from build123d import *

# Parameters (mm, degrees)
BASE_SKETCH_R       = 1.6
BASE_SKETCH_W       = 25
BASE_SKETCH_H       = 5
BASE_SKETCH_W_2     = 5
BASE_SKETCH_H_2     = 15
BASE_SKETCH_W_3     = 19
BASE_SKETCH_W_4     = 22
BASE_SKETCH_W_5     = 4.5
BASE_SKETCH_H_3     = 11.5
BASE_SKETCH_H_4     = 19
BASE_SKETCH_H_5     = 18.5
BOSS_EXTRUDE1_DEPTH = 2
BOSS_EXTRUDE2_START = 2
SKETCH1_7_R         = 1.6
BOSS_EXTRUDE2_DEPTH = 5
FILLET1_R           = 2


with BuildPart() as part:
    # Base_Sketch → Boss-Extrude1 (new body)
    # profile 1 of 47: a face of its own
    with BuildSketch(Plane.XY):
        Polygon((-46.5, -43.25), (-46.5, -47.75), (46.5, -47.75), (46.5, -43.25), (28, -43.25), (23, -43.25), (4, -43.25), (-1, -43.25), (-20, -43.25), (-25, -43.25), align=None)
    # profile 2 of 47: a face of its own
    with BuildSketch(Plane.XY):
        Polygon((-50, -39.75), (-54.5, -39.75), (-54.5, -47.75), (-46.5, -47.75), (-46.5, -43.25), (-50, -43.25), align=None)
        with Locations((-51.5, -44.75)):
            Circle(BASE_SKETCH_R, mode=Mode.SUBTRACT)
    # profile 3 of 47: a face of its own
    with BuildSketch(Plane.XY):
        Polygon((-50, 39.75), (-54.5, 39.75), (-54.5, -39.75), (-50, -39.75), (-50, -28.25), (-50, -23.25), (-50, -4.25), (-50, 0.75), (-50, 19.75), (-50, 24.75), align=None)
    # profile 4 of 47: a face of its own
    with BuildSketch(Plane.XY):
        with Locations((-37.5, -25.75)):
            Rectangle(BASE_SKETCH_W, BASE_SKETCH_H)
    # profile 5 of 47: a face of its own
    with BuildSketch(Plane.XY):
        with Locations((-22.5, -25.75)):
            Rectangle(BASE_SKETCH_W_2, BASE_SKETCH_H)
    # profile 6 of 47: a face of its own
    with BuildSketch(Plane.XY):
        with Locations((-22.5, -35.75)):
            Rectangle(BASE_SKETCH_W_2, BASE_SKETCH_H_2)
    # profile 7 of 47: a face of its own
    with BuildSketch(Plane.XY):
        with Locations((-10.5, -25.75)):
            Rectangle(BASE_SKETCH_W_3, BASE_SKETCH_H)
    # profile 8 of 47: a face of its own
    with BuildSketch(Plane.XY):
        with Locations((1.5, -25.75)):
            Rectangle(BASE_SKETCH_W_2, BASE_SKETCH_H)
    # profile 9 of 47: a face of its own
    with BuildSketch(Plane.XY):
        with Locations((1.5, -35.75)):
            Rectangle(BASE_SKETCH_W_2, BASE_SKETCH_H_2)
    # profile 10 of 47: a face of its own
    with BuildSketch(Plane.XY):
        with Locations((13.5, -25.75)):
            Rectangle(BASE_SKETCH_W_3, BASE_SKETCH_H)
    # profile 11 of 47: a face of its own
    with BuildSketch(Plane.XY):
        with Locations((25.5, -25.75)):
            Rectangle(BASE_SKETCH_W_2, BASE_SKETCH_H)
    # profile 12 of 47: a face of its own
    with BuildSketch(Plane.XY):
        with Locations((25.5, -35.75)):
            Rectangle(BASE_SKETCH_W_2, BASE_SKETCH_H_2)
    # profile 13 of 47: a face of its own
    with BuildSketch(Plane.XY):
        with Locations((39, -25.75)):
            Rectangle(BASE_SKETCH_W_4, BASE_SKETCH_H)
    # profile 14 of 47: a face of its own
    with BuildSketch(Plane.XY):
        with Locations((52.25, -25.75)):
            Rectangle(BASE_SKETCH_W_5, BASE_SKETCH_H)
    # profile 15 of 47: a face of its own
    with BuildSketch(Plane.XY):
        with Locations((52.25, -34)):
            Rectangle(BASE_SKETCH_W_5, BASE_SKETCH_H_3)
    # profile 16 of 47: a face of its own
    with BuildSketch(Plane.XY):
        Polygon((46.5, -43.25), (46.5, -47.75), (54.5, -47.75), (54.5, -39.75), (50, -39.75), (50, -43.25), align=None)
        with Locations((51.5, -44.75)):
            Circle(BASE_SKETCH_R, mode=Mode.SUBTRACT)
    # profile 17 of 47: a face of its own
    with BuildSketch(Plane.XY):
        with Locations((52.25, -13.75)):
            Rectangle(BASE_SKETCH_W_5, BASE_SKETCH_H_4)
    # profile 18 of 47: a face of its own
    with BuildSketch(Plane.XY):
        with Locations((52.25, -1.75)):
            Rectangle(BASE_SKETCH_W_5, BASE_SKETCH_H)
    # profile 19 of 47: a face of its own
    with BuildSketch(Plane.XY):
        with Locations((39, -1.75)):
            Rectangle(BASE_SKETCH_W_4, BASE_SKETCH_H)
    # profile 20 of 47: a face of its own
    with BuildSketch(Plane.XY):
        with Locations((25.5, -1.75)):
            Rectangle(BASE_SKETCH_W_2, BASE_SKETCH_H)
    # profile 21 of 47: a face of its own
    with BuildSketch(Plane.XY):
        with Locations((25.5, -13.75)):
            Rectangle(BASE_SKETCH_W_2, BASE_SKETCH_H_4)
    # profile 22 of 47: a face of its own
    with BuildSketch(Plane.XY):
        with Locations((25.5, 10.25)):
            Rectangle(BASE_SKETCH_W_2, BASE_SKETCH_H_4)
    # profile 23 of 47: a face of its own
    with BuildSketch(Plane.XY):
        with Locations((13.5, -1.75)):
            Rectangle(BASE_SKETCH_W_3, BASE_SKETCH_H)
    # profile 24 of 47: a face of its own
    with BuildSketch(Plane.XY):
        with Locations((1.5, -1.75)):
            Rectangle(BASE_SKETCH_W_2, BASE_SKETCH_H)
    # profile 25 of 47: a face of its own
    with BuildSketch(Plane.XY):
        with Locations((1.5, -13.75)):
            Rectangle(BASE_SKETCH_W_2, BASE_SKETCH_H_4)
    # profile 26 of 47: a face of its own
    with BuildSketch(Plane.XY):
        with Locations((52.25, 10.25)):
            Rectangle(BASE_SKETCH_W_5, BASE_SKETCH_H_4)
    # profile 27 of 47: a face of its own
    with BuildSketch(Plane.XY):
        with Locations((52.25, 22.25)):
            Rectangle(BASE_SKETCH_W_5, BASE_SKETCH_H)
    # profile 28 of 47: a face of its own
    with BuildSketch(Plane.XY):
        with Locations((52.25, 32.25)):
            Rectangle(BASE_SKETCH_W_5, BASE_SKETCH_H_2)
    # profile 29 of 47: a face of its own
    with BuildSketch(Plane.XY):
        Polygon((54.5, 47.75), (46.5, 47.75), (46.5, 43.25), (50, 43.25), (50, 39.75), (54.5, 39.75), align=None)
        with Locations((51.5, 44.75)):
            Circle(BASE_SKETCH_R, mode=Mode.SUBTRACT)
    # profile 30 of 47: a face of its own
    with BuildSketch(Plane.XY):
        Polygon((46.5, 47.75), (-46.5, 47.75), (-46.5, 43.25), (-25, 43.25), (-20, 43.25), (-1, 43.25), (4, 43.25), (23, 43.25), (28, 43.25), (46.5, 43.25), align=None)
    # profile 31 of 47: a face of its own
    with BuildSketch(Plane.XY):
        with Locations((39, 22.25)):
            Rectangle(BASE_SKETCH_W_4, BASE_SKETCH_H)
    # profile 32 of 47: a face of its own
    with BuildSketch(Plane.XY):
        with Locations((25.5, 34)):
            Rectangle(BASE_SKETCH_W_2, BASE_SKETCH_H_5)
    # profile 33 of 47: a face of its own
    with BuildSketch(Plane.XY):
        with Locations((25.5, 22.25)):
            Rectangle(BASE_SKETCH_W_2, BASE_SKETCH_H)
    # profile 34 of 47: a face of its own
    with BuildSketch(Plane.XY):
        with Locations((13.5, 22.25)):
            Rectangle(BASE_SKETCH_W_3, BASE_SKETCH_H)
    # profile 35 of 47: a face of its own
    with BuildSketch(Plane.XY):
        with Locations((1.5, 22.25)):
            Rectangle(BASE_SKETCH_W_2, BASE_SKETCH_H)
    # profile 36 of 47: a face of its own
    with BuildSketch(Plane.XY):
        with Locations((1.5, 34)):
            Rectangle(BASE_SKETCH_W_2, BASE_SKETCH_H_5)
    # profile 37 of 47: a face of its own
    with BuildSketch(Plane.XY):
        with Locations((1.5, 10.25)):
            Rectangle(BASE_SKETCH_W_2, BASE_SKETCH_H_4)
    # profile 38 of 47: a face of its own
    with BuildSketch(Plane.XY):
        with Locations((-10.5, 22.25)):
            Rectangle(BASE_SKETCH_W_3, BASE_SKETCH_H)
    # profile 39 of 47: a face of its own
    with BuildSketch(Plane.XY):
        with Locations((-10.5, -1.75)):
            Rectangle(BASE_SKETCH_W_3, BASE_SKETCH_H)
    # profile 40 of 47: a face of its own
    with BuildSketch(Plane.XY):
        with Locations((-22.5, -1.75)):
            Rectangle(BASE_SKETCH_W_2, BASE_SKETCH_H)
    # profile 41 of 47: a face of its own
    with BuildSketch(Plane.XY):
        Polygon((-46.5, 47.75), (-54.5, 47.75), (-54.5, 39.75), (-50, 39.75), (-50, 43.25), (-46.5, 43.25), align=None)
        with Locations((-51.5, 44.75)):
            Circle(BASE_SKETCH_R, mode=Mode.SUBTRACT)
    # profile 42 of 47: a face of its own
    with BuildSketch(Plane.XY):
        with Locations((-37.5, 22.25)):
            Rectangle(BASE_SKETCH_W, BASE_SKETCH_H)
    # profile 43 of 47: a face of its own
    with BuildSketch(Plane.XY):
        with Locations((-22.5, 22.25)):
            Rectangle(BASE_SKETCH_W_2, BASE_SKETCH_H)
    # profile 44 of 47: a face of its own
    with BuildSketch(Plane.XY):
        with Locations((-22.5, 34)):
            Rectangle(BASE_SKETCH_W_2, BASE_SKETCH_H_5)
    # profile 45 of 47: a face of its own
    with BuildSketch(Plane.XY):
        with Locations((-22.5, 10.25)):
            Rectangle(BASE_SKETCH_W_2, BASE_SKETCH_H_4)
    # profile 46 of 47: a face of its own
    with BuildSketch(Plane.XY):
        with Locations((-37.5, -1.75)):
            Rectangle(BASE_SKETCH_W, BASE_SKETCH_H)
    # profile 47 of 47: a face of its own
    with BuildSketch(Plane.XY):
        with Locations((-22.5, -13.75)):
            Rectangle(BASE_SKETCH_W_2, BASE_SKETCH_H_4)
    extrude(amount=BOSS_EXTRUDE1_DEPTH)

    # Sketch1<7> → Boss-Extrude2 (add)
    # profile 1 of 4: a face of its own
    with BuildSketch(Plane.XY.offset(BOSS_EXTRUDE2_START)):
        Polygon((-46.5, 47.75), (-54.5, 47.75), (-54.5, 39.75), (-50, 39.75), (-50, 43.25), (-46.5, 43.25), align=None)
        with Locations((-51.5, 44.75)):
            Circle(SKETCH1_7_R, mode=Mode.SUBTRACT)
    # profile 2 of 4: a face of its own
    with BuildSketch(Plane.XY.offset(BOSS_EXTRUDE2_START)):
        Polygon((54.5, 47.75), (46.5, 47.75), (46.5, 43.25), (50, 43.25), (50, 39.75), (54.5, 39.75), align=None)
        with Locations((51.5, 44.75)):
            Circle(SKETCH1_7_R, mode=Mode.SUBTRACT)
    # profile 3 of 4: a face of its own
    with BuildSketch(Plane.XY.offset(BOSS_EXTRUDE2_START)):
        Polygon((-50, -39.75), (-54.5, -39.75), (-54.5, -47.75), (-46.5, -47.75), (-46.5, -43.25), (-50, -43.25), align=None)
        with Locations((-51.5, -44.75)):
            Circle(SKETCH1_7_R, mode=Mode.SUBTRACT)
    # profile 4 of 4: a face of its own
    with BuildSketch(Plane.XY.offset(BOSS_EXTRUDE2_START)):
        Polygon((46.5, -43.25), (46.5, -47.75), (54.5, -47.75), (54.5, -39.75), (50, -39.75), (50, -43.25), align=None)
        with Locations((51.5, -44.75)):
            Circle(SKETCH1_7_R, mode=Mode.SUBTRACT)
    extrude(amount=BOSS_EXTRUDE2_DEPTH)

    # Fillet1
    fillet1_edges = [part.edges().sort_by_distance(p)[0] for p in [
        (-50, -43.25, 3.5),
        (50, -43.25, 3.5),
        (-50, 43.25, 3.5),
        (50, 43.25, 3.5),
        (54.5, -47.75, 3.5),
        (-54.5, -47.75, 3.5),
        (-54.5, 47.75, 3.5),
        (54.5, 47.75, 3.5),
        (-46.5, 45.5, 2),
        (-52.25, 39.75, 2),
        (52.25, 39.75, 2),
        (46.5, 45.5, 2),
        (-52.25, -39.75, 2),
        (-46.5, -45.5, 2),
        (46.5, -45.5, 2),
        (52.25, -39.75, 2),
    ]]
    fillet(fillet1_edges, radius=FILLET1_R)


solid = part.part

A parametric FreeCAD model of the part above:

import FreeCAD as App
import Part
import Sketcher

V = App.Vector
Q = App.Units.Quantity


def edges_at(feature, points):
    """Names of the edges that pass closest to the given points."""
    edges = feature.Shape.Edges
    near = lambda p: min(range(len(edges)), key=lambda i: edges[i].distToShape(Part.Vertex(*p))[0])
    return sorted({f"Edge{near(p) + 1}" for p in points})

doc = App.newDocument("Part")
body = doc.addObject("PartDesign::Body", "Body")

sketch1 = body.newObject("Sketcher::SketchObject", "Sketch")
sketch1.AttachmentSupport = (doc.getObject("XY_Plane"), [""])
sketch1.MapMode = "FlatFace"
sketch1.addGeometry([
    Part.LineSegment(V(54.5, -47.8, 0), V(54.5, 47.8, 0)),
    Part.LineSegment(V(54.5, 47.8, 0), V(-54.5, 47.8, 0)),
    Part.LineSegment(V(-54.5, 47.8, 0), V(-54.5, -47.8, 0)),
    Part.LineSegment(V(-54.5, -47.8, 0), V(54.5, -47.8, 0)),
    Part.LineSegment(V(28, -43.2, 0), V(28, -28.2, 0)),
    Part.LineSegment(V(28, -28.2, 0), V(50, -28.2, 0)),
    Part.LineSegment(V(50, -28.2, 0), V(50, -43.2, 0)),
    Part.LineSegment(V(50, -43.2, 0), V(28, -43.2, 0)),
    Part.LineSegment(V(23, -43.2, 0), V(4, -43.2, 0)),
    Part.LineSegment(V(4, -43.2, 0), V(4, -28.2, 0)),
    Part.LineSegment(V(4, -28.2, 0), V(23, -28.2, 0)),
    Part.LineSegment(V(23, -28.2, 0), V(23, -43.2, 0)),
    Part.LineSegment(V(-1, -43.2, 0), V(-20, -43.2, 0)),
    Part.LineSegment(V(-20, -43.2, 0), V(-20, -28.2, 0)),
    Part.LineSegment(V(-20, -28.2, 0), V(-1, -28.2, 0)),
    Part.LineSegment(V(-1, -28.2, 0), V(-1, -43.2, 0)),
    Part.LineSegment(V(-25, -43.2, 0), V(-50, -43.2, 0)),
    Part.LineSegment(V(-50, -43.2, 0), V(-50, -28.2, 0)),
    Part.LineSegment(V(-50, -28.2, 0), V(-25, -28.2, 0)),
    Part.LineSegment(V(-25, -28.2, 0), V(-25, -43.2, 0)),
    Part.Circle(V(-51.5, -44.8, 0), V(0, 0, 1), 1.6),
    Part.Circle(V(51.5, -44.8, 0), V(0, 0, 1), 1.6),
    Part.LineSegment(V(-50, 24.8, 0), V(-50, 43.2, 0)),
    Part.LineSegment(V(-50, 43.2, 0), V(-25, 43.2, 0)),
    Part.LineSegment(V(-25, 43.2, 0), V(-25, 24.8, 0)),
    Part.LineSegment(V(-25, 24.8, 0), V(-50, 24.8, 0)),
    Part.LineSegment(V(-50, -23.2, 0), V(-50, -4.2, 0)),
    Part.LineSegment(V(-50, -4.2, 0), V(-25, -4.2, 0)),
    Part.LineSegment(V(-25, -4.2, 0), V(-25, -23.2, 0)),
    Part.LineSegment(V(-25, -23.2, 0), V(-50, -23.2, 0)),
    Part.LineSegment(V(-50, 0.8, 0), V(-50, 19.8, 0)),
    Part.LineSegment(V(-50, 19.8, 0), V(-25, 19.8, 0)),
    Part.LineSegment(V(-25, 19.8, 0), V(-25, 0.8, 0)),
    Part.LineSegment(V(-25, 0.8, 0), V(-50, 0.8, 0)),
    Part.Circle(V(-51.5, 44.8, 0), V(0, 0, 1), 1.6),
    Part.LineSegment(V(23, -23.2, 0), V(4, -23.2, 0)),
    Part.LineSegment(V(4, -23.2, 0), V(4, -4.2, 0)),
    Part.LineSegment(V(4, -4.2, 0), V(23, -4.2, 0)),
    Part.LineSegment(V(23, -4.2, 0), V(23, -23.2, 0)),
    Part.LineSegment(V(28, -23.2, 0), V(28, -4.2, 0)),
    Part.LineSegment(V(28, -4.2, 0), V(50, -4.2, 0)),
    Part.LineSegment(V(50, -4.2, 0), V(50, -23.2, 0)),
    Part.LineSegment(V(50, -23.2, 0), V(28, -23.2, 0)),
    Part.LineSegment(V(-1, -23.2, 0), V(-20, -23.2, 0)),
    Part.LineSegment(V(-20, -23.2, 0), V(-20, -4.2, 0)),
    Part.LineSegment(V(-20, -4.2, 0), V(-1, -4.2, 0)),
    Part.LineSegment(V(-1, -4.2, 0), V(-1, -23.2, 0)),
    Part.LineSegment(V(-20, 43.2, 0), V(-1, 43.2, 0)),
    Part.LineSegment(V(-1, 43.2, 0), V(-1, 24.8, 0)),
    Part.LineSegment(V(-1, 24.8, 0), V(-20, 24.8, 0)),
    Part.LineSegment(V(-20, 24.8, 0), V(-20, 43.2, 0)),
    Part.LineSegment(V(4, 43.2, 0), V(23, 43.2, 0)),
    Part.LineSegment(V(23, 43.2, 0), V(23, 24.8, 0)),
    Part.LineSegment(V(23, 24.8, 0), V(4, 24.8, 0)),
    Part.LineSegment(V(4, 24.8, 0), V(4, 43.2, 0)),
    Part.LineSegment(V(28, 43.2, 0), V(50, 43.2, 0)),
    Part.LineSegment(V(50, 43.2, 0), V(50, 24.8, 0)),
    Part.LineSegment(V(50, 24.8, 0), V(28, 24.8, 0)),
    Part.LineSegment(V(28, 24.8, 0), V(28, 43.2, 0)),
    Part.Circle(V(51.5, 44.8, 0), V(0, 0, 1), 1.6),
    Part.LineSegment(V(-20, 0.8, 0), V(-20, 19.8, 0)),
    Part.LineSegment(V(-20, 19.8, 0), V(-1, 19.8, 0)),
    Part.LineSegment(V(-1, 19.8, 0), V(-1, 0.8, 0)),
    Part.LineSegment(V(-1, 0.8, 0), V(-20, 0.8, 0)),
    Part.LineSegment(V(23, 0.8, 0), V(4, 0.8, 0)),
    Part.LineSegment(V(4, 0.8, 0), V(4, 19.8, 0)),
    Part.LineSegment(V(4, 19.8, 0), V(23, 19.8, 0)),
    Part.LineSegment(V(23, 19.8, 0), V(23, 0.8, 0)),
    Part.LineSegment(V(28, 0.8, 0), V(28, 19.8, 0)),
    Part.LineSegment(V(28, 19.8, 0), V(50, 19.8, 0)),
    Part.LineSegment(V(50, 19.8, 0), V(50, 0.8, 0)),
    Part.LineSegment(V(50, 0.8, 0), V(28, 0.8, 0)),
], False)
sketch1.addConstraint([
    Sketcher.Constraint("Coincident", 0, 2, 1, 1),
    Sketcher.Constraint("Coincident", 1, 2, 2, 1),
    Sketcher.Constraint("Coincident", 2, 2, 3, 1),
    Sketcher.Constraint("Coincident", 3, 2, 0, 1),
    Sketcher.Constraint("Coincident", 4, 2, 5, 1),
    Sketcher.Constraint("Coincident", 5, 2, 6, 1),
    Sketcher.Constraint("Coincident", 6, 2, 7, 1),
    Sketcher.Constraint("Coincident", 7, 2, 4, 1),
    Sketcher.Constraint("Coincident", 8, 2, 9, 1),
    Sketcher.Constraint("Coincident", 9, 2, 10, 1),
    Sketcher.Constraint("Coincident", 10, 2, 11, 1),
    Sketcher.Constraint("Coincident", 11, 2, 8, 1),
    Sketcher.Constraint("Coincident", 12, 2, 13, 1),
    Sketcher.Constraint("Coincident", 13, 2, 14, 1),
    Sketcher.Constraint("Coincident", 14, 2, 15, 1),
    Sketcher.Constraint("Coincident", 15, 2, 12, 1),
    Sketcher.Constraint("Coincident", 16, 2, 17, 1),
    Sketcher.Constraint("Coincident", 17, 2, 18, 1),
    Sketcher.Constraint("Coincident", 18, 2, 19, 1),
    Sketcher.Constraint("Coincident", 19, 2, 16, 1),
    Sketcher.Constraint("Coincident", 22, 2, 23, 1),
    Sketcher.Constraint("Coincident", 23, 2, 24, 1),
    Sketcher.Constraint("Coincident", 24, 2, 25, 1),
    Sketcher.Constraint("Coincident", 25, 2, 22, 1),
    Sketcher.Constraint("Coincident", 26, 2, 27, 1),
    Sketcher.Constraint("Coincident", 27, 2, 28, 1),
    Sketcher.Constraint("Coincident", 28, 2, 29, 1),
    Sketcher.Constraint("Coincident", 29, 2, 26, 1),
    Sketcher.Constraint("Coincident", 30, 2, 31, 1),
    Sketcher.Constraint("Coincident", 31, 2, 32, 1),
    Sketcher.Constraint("Coincident", 32, 2, 33, 1),
    Sketcher.Constraint("Coincident", 33, 2, 30, 1),
    Sketcher.Constraint("Coincident", 35, 2, 36, 1),
    Sketcher.Constraint("Coincident", 36, 2, 37, 1),
    Sketcher.Constraint("Coincident", 37, 2, 38, 1),
    Sketcher.Constraint("Coincident", 38, 2, 35, 1),
    Sketcher.Constraint("Coincident", 39, 2, 40, 1),
    Sketcher.Constraint("Coincident", 40, 2, 41, 1),
    Sketcher.Constraint("Coincident", 41, 2, 42, 1),
    Sketcher.Constraint("Coincident", 42, 2, 39, 1),
    Sketcher.Constraint("Coincident", 43, 2, 44, 1),
    Sketcher.Constraint("Coincident", 44, 2, 45, 1),
    Sketcher.Constraint("Coincident", 45, 2, 46, 1),
    Sketcher.Constraint("Coincident", 46, 2, 43, 1),
    Sketcher.Constraint("Coincident", 47, 2, 48, 1),
    Sketcher.Constraint("Coincident", 48, 2, 49, 1),
    Sketcher.Constraint("Coincident", 49, 2, 50, 1),
    Sketcher.Constraint("Coincident", 50, 2, 47, 1),
    Sketcher.Constraint("Coincident", 51, 2, 52, 1),
    Sketcher.Constraint("Coincident", 52, 2, 53, 1),
    Sketcher.Constraint("Coincident", 53, 2, 54, 1),
    Sketcher.Constraint("Coincident", 54, 2, 51, 1),
    Sketcher.Constraint("Coincident", 55, 2, 56, 1),
    Sketcher.Constraint("Coincident", 56, 2, 57, 1),
    Sketcher.Constraint("Coincident", 57, 2, 58, 1),
    Sketcher.Constraint("Coincident", 58, 2, 55, 1),
    Sketcher.Constraint("Coincident", 60, 2, 61, 1),
    Sketcher.Constraint("Coincident", 61, 2, 62, 1),
    Sketcher.Constraint("Coincident", 62, 2, 63, 1),
    Sketcher.Constraint("Coincident", 63, 2, 60, 1),
    Sketcher.Constraint("Coincident", 64, 2, 65, 1),
    Sketcher.Constraint("Coincident", 65, 2, 66, 1),
    Sketcher.Constraint("Coincident", 66, 2, 67, 1),
    Sketcher.Constraint("Coincident", 67, 2, 64, 1),
    Sketcher.Constraint("Coincident", 68, 2, 69, 1),
    Sketcher.Constraint("Coincident", 69, 2, 70, 1),
    Sketcher.Constraint("Coincident", 70, 2, 71, 1),
    Sketcher.Constraint("Coincident", 71, 2, 68, 1),
    Sketcher.Constraint("Vertical", 0),
    Sketcher.Constraint("Horizontal", 1),
    Sketcher.Constraint("Vertical", 2),
    Sketcher.Constraint("Horizontal", 3),
    Sketcher.Constraint("Vertical", 4),
    Sketcher.Constraint("Horizontal", 5),
    Sketcher.Constraint("Vertical", 6),
    Sketcher.Constraint("Horizontal", 7),
    Sketcher.Constraint("Horizontal", 8),
    Sketcher.Constraint("Vertical", 9),
    Sketcher.Constraint("Horizontal", 10),
    Sketcher.Constraint("Vertical", 11),
    Sketcher.Constraint("Horizontal", 12),
    Sketcher.Constraint("Vertical", 13),
    Sketcher.Constraint("Horizontal", 14),
    Sketcher.Constraint("Vertical", 15),
    Sketcher.Constraint("Horizontal", 16),
    Sketcher.Constraint("Vertical", 17),
    Sketcher.Constraint("Horizontal", 18),
    Sketcher.Constraint("Vertical", 19),
    Sketcher.Constraint("Vertical", 22),
    Sketcher.Constraint("Horizontal", 23),
    Sketcher.Constraint("Vertical", 24),
    Sketcher.Constraint("Horizontal", 25),
    Sketcher.Constraint("Vertical", 26),
    Sketcher.Constraint("Horizontal", 27),
    Sketcher.Constraint("Vertical", 28),
    Sketcher.Constraint("Horizontal", 29),
    Sketcher.Constraint("Vertical", 30),
    Sketcher.Constraint("Horizontal", 31),
    Sketcher.Constraint("Vertical", 32),
    Sketcher.Constraint("Horizontal", 33),
    Sketcher.Constraint("Horizontal", 35),
    Sketcher.Constraint("Vertical", 36),
    Sketcher.Constraint("Horizontal", 37),
    Sketcher.Constraint("Vertical", 38),
    Sketcher.Constraint("Vertical", 39),
    Sketcher.Constraint("Horizontal", 40),
    Sketcher.Constraint("Vertical", 41),
    Sketcher.Constraint("Horizontal", 42),
    Sketcher.Constraint("Horizontal", 43),
    Sketcher.Constraint("Vertical", 44),
    Sketcher.Constraint("Horizontal", 45),
    Sketcher.Constraint("Vertical", 46),
    Sketcher.Constraint("Horizontal", 47),
    Sketcher.Constraint("Vertical", 48),
    Sketcher.Constraint("Horizontal", 49),
    Sketcher.Constraint("Vertical", 50),
    Sketcher.Constraint("Horizontal", 51),
    Sketcher.Constraint("Vertical", 52),
    Sketcher.Constraint("Horizontal", 53),
    Sketcher.Constraint("Vertical", 54),
    Sketcher.Constraint("Horizontal", 55),
    Sketcher.Constraint("Vertical", 56),
    Sketcher.Constraint("Horizontal", 57),
    Sketcher.Constraint("Vertical", 58),
    Sketcher.Constraint("Vertical", 60),
    Sketcher.Constraint("Horizontal", 61),
    Sketcher.Constraint("Vertical", 62),
    Sketcher.Constraint("Horizontal", 63),
    Sketcher.Constraint("Horizontal", 64),
    Sketcher.Constraint("Vertical", 65),
    Sketcher.Constraint("Horizontal", 66),
    Sketcher.Constraint("Vertical", 67),
    Sketcher.Constraint("Vertical", 68),
    Sketcher.Constraint("Horizontal", 69),
    Sketcher.Constraint("Vertical", 70),
    Sketcher.Constraint("Horizontal", 71),
    Sketcher.Constraint("Equal", 20, 21),
    Sketcher.Constraint("Equal", 21, 34),
    Sketcher.Constraint("Equal", 34, 59),
    Sketcher.Constraint("Symmetric", 21, 3, 34, 3, -1, 1),
    Sketcher.Constraint("Symmetric", 20, 3, 59, 3, -1, 1),
    Sketcher.Constraint("Symmetric", 0, 2, 2, 2, -1, 1),
    Sketcher.Constraint("Symmetric", 6, 2, 22, 2, -1, 1),
    Sketcher.Constraint("Symmetric", 16, 2, 55, 2, -1, 1),
    Sketcher.Constraint("Symmetric", 20, 3, 21, 3, -2),
    Sketcher.Constraint("Symmetric", 6, 2, 16, 2, -2),
    Sketcher.Constraint("Symmetric", 26, 2, 40, 2, -2),
    Sketcher.Constraint("Symmetric", 30, 2, 69, 2, -2),
    Sketcher.Constraint("Symmetric", 15, 2, 47, 2, -1),
    Sketcher.Constraint("Symmetric", 11, 2, 51, 2, -1),
    Sketcher.Constraint("Horizontal", 7, 2, 8, 2),
    Sketcher.Constraint("Horizontal", 5, 2, 9, 2),
    Sketcher.Constraint("Horizontal", 11, 2, 12, 2),
    Sketcher.Constraint("Horizontal", 10, 2, 13, 2),
    Sketcher.Constraint("Horizontal", 14, 2, 17, 2),
    Sketcher.Constraint("Horizontal", 29, 2, 35, 2),
    Sketcher.Constraint("Horizontal", 27, 2, 36, 2),
    Sketcher.Constraint("Horizontal", 38, 2, 41, 2),
    Sketcher.Constraint("Horizontal", 42, 2, 43, 2),
    Sketcher.Constraint("Horizontal", 40, 2, 44, 2),
    Sketcher.Constraint("Horizontal", 25, 2, 48, 2),
    Sketcher.Constraint("Horizontal", 49, 2, 52, 2),
    Sketcher.Constraint("Horizontal", 53, 2, 56, 2),
    Sketcher.Constraint("Horizontal", 31, 2, 60, 2),
    Sketcher.Constraint("Horizontal", 33, 2, 62, 2),
    Sketcher.Constraint("Horizontal", 63, 2, 64, 2),
    Sketcher.Constraint("Horizontal", 61, 2, 65, 2),
    Sketcher.Constraint("Horizontal", 67, 2, 70, 2),
    Sketcher.Constraint("Vertical", 19, 2, 23, 2),
    Sketcher.Constraint("Vertical", 25, 2, 26, 2),
    Sketcher.Constraint("Vertical", 24, 2, 27, 2),
    Sketcher.Constraint("Vertical", 29, 2, 30, 2),
    Sketcher.Constraint("Vertical", 28, 2, 31, 2),
    Sketcher.Constraint("Vertical", 9, 2, 35, 2),
    Sketcher.Constraint("Vertical", 11, 2, 37, 2),
    Sketcher.Constraint("Vertical", 7, 2, 39, 2),
    Sketcher.Constraint("Vertical", 13, 2, 43, 2),
    Sketcher.Constraint("Vertical", 15, 2, 45, 2),
    Sketcher.Constraint("Vertical", 44, 2, 49, 2),
    Sketcher.Constraint("Vertical", 36, 2, 53, 2),
    Sketcher.Constraint("Vertical", 42, 2, 57, 2),
    Sketcher.Constraint("Vertical", 50, 2, 60, 2),
    Sketcher.Constraint("Vertical", 48, 2, 61, 2),
    Sketcher.Constraint("Vertical", 54, 2, 64, 2),
    Sketcher.Constraint("Vertical", 52, 2, 66, 2),
    Sketcher.Constraint("Vertical", 58, 2, 68, 2),
    Sketcher.Constraint("Equal", 10, 12),
    Sketcher.Constraint("Equal", 66, 26),
    Sketcher.Constraint("Equal", 28, 30),
    Sketcher.Constraint("Diameter", 20, Q("3.2 mm")),
    Sketcher.Constraint("DistanceX", 1, 2, 1, 1, Q("109 mm")),
    Sketcher.Constraint("DistanceX", 5, 1, 5, 2, Q("22 mm")),
    Sketcher.Constraint("DistanceX", 8, 2, 8, 1, Q("19 mm")),
    Sketcher.Constraint("DistanceX", 16, 2, 16, 1, Q("25 mm")),
    Sketcher.Constraint("DistanceY", 4, 1, 4, 2, Q("15 mm")),
    Sketcher.Constraint("DistanceY", 0, 1, 0, 2, Q("95.5 mm")),
    Sketcher.Constraint("DistanceY", 22, 1, 22, 2, Q("18.5 mm")),
    Sketcher.Constraint("DistanceX", -1, 1, 4, 2, Q("28 mm")),
    Sketcher.Constraint("DistanceX", -1, 1, 8, 2, Q("4 mm")),
    Sketcher.Constraint("DistanceX", 12, 2, -1, 1, Q("20 mm")),
    Sketcher.Constraint("DistanceX", 20, 3, -1, 1, Q("51.5 mm")),
    Sketcher.Constraint("DistanceY", 20, 3, -1, 1, Q("44.75 mm")),
    Sketcher.Constraint("DistanceY", 4, 2, -1, 1, Q("28.25 mm")),
    Sketcher.Constraint("DistanceY", 26, 2, -1, 1, Q("4.25 mm")),
    Sketcher.Constraint("DistanceY", -1, 1, 30, 2, Q("19.75 mm")),
])
pad1 = body.newObject("PartDesign::Pad", "Pad")
pad1.Profile = sketch1
pad1.Length = 2

sketch2 = body.newObject("Sketcher::SketchObject", "Sketch001")
sketch2.AttachmentSupport = (doc.getObject("XY_Plane"), [""])
sketch2.MapMode = "FlatFace"
sketch2.AttachmentOffset = App.Placement(V(0, 0, 2), App.Rotation())
sketch2.addGeometry([
    Part.LineSegment(V(-46.5, 47.8, 0), V(-54.5, 47.8, 0)),
    Part.LineSegment(V(-54.5, 47.8, 0), V(-54.5, 39.8, 0)),
    Part.LineSegment(V(-54.5, 39.8, 0), V(-50, 39.8, 0)),
    Part.LineSegment(V(-50, 39.8, 0), V(-50, 43.2, 0)),
    Part.LineSegment(V(-50, 43.2, 0), V(-46.5, 43.2, 0)),
    Part.LineSegment(V(-46.5, 43.2, 0), V(-46.5, 47.8, 0)),
    Part.Circle(V(-51.5, 44.8, 0), V(0, 0, 1), 1.6),
    Part.LineSegment(V(54.5, 47.8, 0), V(46.5, 47.8, 0)),
    Part.LineSegment(V(46.5, 47.8, 0), V(46.5, 43.2, 0)),
    Part.LineSegment(V(46.5, 43.2, 0), V(50, 43.2, 0)),
    Part.LineSegment(V(50, 43.2, 0), V(50, 39.8, 0)),
    Part.LineSegment(V(50, 39.8, 0), V(54.5, 39.8, 0)),
    Part.LineSegment(V(54.5, 39.8, 0), V(54.5, 47.8, 0)),
    Part.Circle(V(51.5, 44.8, 0), V(0, 0, 1), 1.6),
    Part.LineSegment(V(-50, -39.8, 0), V(-54.5, -39.8, 0)),
    Part.LineSegment(V(-54.5, -39.8, 0), V(-54.5, -47.8, 0)),
    Part.LineSegment(V(-54.5, -47.8, 0), V(-46.5, -47.8, 0)),
    Part.LineSegment(V(-46.5, -47.8, 0), V(-46.5, -43.2, 0)),
    Part.LineSegment(V(-46.5, -43.2, 0), V(-50, -43.2, 0)),
    Part.LineSegment(V(-50, -43.2, 0), V(-50, -39.8, 0)),
    Part.Circle(V(-51.5, -44.8, 0), V(0, 0, 1), 1.6),
    Part.LineSegment(V(46.5, -43.2, 0), V(46.5, -47.8, 0)),
    Part.LineSegment(V(46.5, -47.8, 0), V(54.5, -47.8, 0)),
    Part.LineSegment(V(54.5, -47.8, 0), V(54.5, -39.8, 0)),
    Part.LineSegment(V(54.5, -39.8, 0), V(50, -39.8, 0)),
    Part.LineSegment(V(50, -39.8, 0), V(50, -43.2, 0)),
    Part.LineSegment(V(50, -43.2, 0), V(46.5, -43.2, 0)),
    Part.Circle(V(51.5, -44.8, 0), V(0, 0, 1), 1.6),
], False)
sketch2.addConstraint([
    Sketcher.Constraint("Coincident", 0, 2, 1, 1),
    Sketcher.Constraint("Coincident", 1, 2, 2, 1),
    Sketcher.Constraint("Coincident", 2, 2, 3, 1),
    Sketcher.Constraint("Coincident", 3, 2, 4, 1),
    Sketcher.Constraint("Coincident", 4, 2, 5, 1),
    Sketcher.Constraint("Coincident", 5, 2, 0, 1),
    Sketcher.Constraint("Coincident", 7, 2, 8, 1),
    Sketcher.Constraint("Coincident", 8, 2, 9, 1),
    Sketcher.Constraint("Coincident", 9, 2, 10, 1),
    Sketcher.Constraint("Coincident", 10, 2, 11, 1),
    Sketcher.Constraint("Coincident", 11, 2, 12, 1),
    Sketcher.Constraint("Coincident", 12, 2, 7, 1),
    Sketcher.Constraint("Coincident", 14, 2, 15, 1),
    Sketcher.Constraint("Coincident", 15, 2, 16, 1),
    Sketcher.Constraint("Coincident", 16, 2, 17, 1),
    Sketcher.Constraint("Coincident", 17, 2, 18, 1),
    Sketcher.Constraint("Coincident", 18, 2, 19, 1),
    Sketcher.Constraint("Coincident", 19, 2, 14, 1),
    Sketcher.Constraint("Coincident", 21, 2, 22, 1),
    Sketcher.Constraint("Coincident", 22, 2, 23, 1),
    Sketcher.Constraint("Coincident", 23, 2, 24, 1),
    Sketcher.Constraint("Coincident", 24, 2, 25, 1),
    Sketcher.Constraint("Coincident", 25, 2, 26, 1),
    Sketcher.Constraint("Coincident", 26, 2, 21, 1),
    Sketcher.Constraint("Horizontal", 0),
    Sketcher.Constraint("Vertical", 1),
    Sketcher.Constraint("Horizontal", 2),
    Sketcher.Constraint("Vertical", 3),
    Sketcher.Constraint("Horizontal", 4),
    Sketcher.Constraint("Vertical", 5),
    Sketcher.Constraint("Horizontal", 7),
    Sketcher.Constraint("Vertical", 8),
    Sketcher.Constraint("Horizontal", 9),
    Sketcher.Constraint("Vertical", 10),
    Sketcher.Constraint("Horizontal", 11),
    Sketcher.Constraint("Vertical", 12),
    Sketcher.Constraint("Horizontal", 14),
    Sketcher.Constraint("Vertical", 15),
    Sketcher.Constraint("Horizontal", 16),
    Sketcher.Constraint("Vertical", 17),
    Sketcher.Constraint("Horizontal", 18),
    Sketcher.Constraint("Vertical", 19),
    Sketcher.Constraint("Vertical", 21),
    Sketcher.Constraint("Horizontal", 22),
    Sketcher.Constraint("Vertical", 23),
    Sketcher.Constraint("Horizontal", 24),
    Sketcher.Constraint("Vertical", 25),
    Sketcher.Constraint("Horizontal", 26),
    Sketcher.Constraint("Equal", 6, 13),
    Sketcher.Constraint("Equal", 13, 20),
    Sketcher.Constraint("Equal", 20, 27),
    Sketcher.Constraint("Symmetric", 13, 3, 20, 3, -1, 1),
    Sketcher.Constraint("Symmetric", 6, 3, 27, 3, -1, 1),
    Sketcher.Constraint("Symmetric", 11, 2, 14, 2, -1, 1),
    Sketcher.Constraint("Symmetric", 7, 2, 16, 2, -1, 1),
    Sketcher.Constraint("Symmetric", 9, 2, 18, 2, -1, 1),
    Sketcher.Constraint("Symmetric", 5, 2, 21, 2, -1, 1),
    Sketcher.Constraint("Symmetric", 1, 2, 23, 2, -1, 1),
    Sketcher.Constraint("Symmetric", 3, 2, 25, 2, -1, 1),
    Sketcher.Constraint("Symmetric", 6, 3, 13, 3, -2),
    Sketcher.Constraint("Symmetric", 5, 2, 7, 2, -2),
    Sketcher.Constraint("Symmetric", 3, 2, 9, 2, -2),
    Sketcher.Constraint("Symmetric", 1, 2, 11, 2, -2),
    Sketcher.Constraint("Equal", 22, 1),
    Sketcher.Constraint("Equal", 26, 3),
    Sketcher.Constraint("Diameter", 6, Q("3.2 mm")),
    Sketcher.Constraint("DistanceX", 0, 2, 0, 1, Q("8 mm")),
    Sketcher.Constraint("DistanceX", 2, 1, 2, 2, Q("4.5 mm")),
    Sketcher.Constraint("DistanceX", 2, 2, -1, 1, Q("50 mm")),
    Sketcher.Constraint("DistanceX", 6, 3, 13, 3, Q("103 mm")),
    Sketcher.Constraint("DistanceY", 6, 3, 0, 2, Q("3 mm")),
    Sketcher.Constraint("DistanceY", 20, 3, 3, 2, Q("88 mm")),
])
pad2 = body.newObject("PartDesign::Pad", "Pad001")
pad2.Profile = sketch2
pad2.Length = 5
doc.recompute()

fillet = body.newObject("PartDesign::Fillet", "Fillet")
fillet.Base = (pad2, edges_at(pad2, [
    (-50, -43.25, 3.5),
    (50, -43.25, 3.5),
    (-50, 43.25, 3.5),
    (50, 43.25, 3.5),
    (54.5, -47.75, 3.5),
    (-54.5, -47.75, 3.5),
    (-54.5, 47.75, 3.5),
    (54.5, 47.75, 3.5),
    (-46.5, 45.5, 2),
    (-52.25, 39.75, 2),
    (52.25, 39.75, 2),
    (46.5, 45.5, 2),
    (-52.25, -39.75, 2),
    (-46.5, -45.5, 2),
    (46.5, -45.5, 2),
    (52.25, -39.75, 2),
]))
fillet.Radius = 2

doc.recompute()
